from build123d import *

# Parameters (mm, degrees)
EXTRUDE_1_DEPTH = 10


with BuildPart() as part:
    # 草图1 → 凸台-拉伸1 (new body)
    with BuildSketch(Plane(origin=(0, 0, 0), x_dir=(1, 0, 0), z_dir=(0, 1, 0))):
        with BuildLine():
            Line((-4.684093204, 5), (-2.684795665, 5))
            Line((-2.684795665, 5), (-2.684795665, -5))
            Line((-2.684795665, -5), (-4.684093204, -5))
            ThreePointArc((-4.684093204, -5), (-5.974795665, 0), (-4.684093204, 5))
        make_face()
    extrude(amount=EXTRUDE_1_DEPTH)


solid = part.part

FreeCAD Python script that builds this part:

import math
import FreeCAD as App
import Part
import Sketcher

V = App.Vector
Q = App.Units.Quantity

doc = App.newDocument("Part")
body = doc.addObject("PartDesign::Body", "Body")

# Sketch on XZ plane
sketch1 = body.newObject("Sketcher::SketchObject", "Sketch")
sketch1.AttachmentSupport = (doc.getObject("XZ_Plane"), [""])
sketch1.MapMode = "FlatFace"
sketch1.addGeometry([
    Part.LineSegment(V(-2.7, -5, 0), V(-4.7, -5, 0)),
    Part.ArcOfCircle(Part.Circle(V(4.4, 0, 0), V(0, 0, 1), 10.3), math.radians(151), math.radians(209)),
    Part.LineSegment(V(-4.7, 5, 0), V(-2.7, 5, 0)),
    Part.LineSegment(V(-2.7, 5, 0), V(-2.7, -5, 0)),
], False)
sketch1.addConstraint([
    Sketcher.Constraint("Coincident", 0, 2, 1, 2),
    Sketcher.Constraint("Coincident", 1, 1, 2, 1),
    Sketcher.Constraint("Coincident", 2, 2, 3, 1),
    Sketcher.Constraint("Coincident", 3, 2, 0, 1),
    Sketcher.Constraint("Horizontal", 0),
    Sketcher.Constraint("Horizontal", 2),
    Sketcher.Constraint("Vertical", 3),
    Sketcher.Constraint("Symmetric", 0, 2, 1, 1, -1),
    Sketcher.Constraint("DistanceY", 3, 2, 3, 1, Q("10 mm")),
    Sketcher.Constraint("Radius", 1, Q("10.33 mm")),
    Sketcher.Constraint("DistanceX", 2, 2, 1, 3, Q("7.04 mm")),
    Sketcher.Constraint("DistanceX", -1, 1, 1, 3, Q("4.355204 mm")),
])
pad1 = body.newObject("PartDesign::Pad", "Pad")
pad1.Profile = sketch1
pad1.Length = 10
pad1.Reversed = True

doc.recompute()
